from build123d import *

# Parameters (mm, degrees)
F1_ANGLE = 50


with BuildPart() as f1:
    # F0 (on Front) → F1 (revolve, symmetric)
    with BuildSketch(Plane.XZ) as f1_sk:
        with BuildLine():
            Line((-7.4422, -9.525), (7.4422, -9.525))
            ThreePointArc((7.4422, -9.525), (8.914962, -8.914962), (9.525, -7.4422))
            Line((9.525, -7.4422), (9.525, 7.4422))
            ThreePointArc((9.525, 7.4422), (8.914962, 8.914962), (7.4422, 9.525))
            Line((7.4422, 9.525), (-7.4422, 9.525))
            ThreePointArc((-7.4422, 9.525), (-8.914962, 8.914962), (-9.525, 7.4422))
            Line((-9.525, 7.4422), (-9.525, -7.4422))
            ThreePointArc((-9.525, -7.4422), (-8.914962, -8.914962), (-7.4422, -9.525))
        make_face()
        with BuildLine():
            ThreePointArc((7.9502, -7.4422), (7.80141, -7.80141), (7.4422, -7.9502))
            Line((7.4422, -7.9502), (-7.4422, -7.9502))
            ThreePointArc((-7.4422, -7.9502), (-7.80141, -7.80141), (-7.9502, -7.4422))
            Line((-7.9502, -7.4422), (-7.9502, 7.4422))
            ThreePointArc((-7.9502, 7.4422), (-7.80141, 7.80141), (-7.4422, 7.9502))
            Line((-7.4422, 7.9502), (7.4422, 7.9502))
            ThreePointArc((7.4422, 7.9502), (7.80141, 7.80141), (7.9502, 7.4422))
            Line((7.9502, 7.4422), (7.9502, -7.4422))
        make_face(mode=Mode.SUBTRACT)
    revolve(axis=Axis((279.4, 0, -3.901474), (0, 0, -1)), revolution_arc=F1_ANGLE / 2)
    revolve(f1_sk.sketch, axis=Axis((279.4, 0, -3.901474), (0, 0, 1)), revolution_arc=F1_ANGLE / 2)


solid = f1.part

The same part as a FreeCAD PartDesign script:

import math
import FreeCAD as App
import Part
import Sketcher
from FreeCAD import Vector
Q = App.Units.Quantity

doc = App.newDocument("Part")
body = doc.addObject("PartDesign::Body", "Body")

sketch1 = doc.addObject("Sketcher::SketchObject", "Sketch")
body.addObject(sketch1)
sketch1.AttachmentSupport = (doc.XZ_Plane, [""])
sketch1.MapMode = "FlatFace"
sketch1.addGeometry(Part.LineSegment(Vector(-7.4422, -9.525, 0), Vector(7.4422, -9.525, 0)), False)
sketch1.addGeometry(Part.ArcOfCircle(Part.Circle(Vector(7.4422, -7.4422, 0), Vector(0, 0, 1), 2.0828), math.radians(-90), math.radians(0)), False)
sketch1.addGeometry(Part.LineSegment(Vector(9.525, -7.4422, 0), Vector(9.525, 7.4422, 0)), False)
sketch1.addGeometry(Part.ArcOfCircle(Part.Circle(Vector(7.4422, 7.4422, 0), Vector(0, 0, 1), 2.0828), math.radians(0), math.radians(90)), False)
sketch1.addGeometry(Part.LineSegment(Vector(7.4422, 9.525, 0), Vector(-7.4422, 9.525, 0)), False)
sketch1.addGeometry(Part.ArcOfCircle(Part.Circle(Vector(-7.4422, 7.4422, 0), Vector(0, 0, 1), 2.0828), math.radians(90), math.radians(180)), False)
sketch1.addGeometry(Part.LineSegment(Vector(-9.525, 7.4422, 0), Vector(-9.525, -7.4422, 0)), False)
sketch1.addGeometry(Part.ArcOfCircle(Part.Circle(Vector(-7.4422, -7.4422, 0), Vector(0, 0, 1), 2.0828), math.radians(-180), math.radians(-90)), False)
sketch1.addGeometry(Part.LineSegment(Vector(7.9502, 7.4422, 0), Vector(7.9502, -7.4422, 0)), False)
sketch1.addGeometry(Part.ArcOfCircle(Part.Circle(Vector(7.442199, -7.442199, 0), Vector(0, 0, 1), 0.508001), math.radians(-89.999906), math.radians(-0.000094)), False)
sketch1.addGeometry(Part.LineSegment(Vector(7.4422, -7.9502, 0), Vector(-7.4422, -7.9502, 0)), False)
sketch1.addGeometry(Part.ArcOfCircle(Part.Circle(Vector(-7.442199, -7.442199, 0), Vector(0, 0, 1), 0.508001), math.radians(-179.999906), math.radians(-90.000094)), False)
sketch1.addGeometry(Part.LineSegment(Vector(-7.9502, -7.4422, 0), Vector(-7.9502, 7.4422, 0)), False)
sketch1.addGeometry(Part.ArcOfCircle(Part.Circle(Vector(-7.442199, 7.442199, 0), Vector(0, 0, 1), 0.508001), math.radians(90.000094), math.radians(179.999906)), False)
sketch1.addGeometry(Part.LineSegment(Vector(-7.4422, 7.9502, 0), Vector(7.4422, 7.9502, 0)), False)
sketch1.addGeometry(Part.ArcOfCircle(Part.Circle(Vector(7.442199, 7.442199, 0), Vector(0, 0, 1), 0.508001), math.radians(0.000094), math.radians(89.999906)), False)
sketch1.addGeometry(Part.LineSegment(Vector(279.4, 9.525, 0), Vector(279.4, -9.525, 0)), True)
sketch1.addConstraint(Sketcher.Constraint("Tangent", 0, 2, 1, 1))
sketch1.addConstraint(Sketcher.Constraint("Tangent", 1, 2, 2, 1))
sketch1.addConstraint(Sketcher.Constraint("Tangent", 2, 2, 3, 1))
sketch1.addConstraint(Sketcher.Constraint("Tangent", 3, 2, 4, 1))
sketch1.addConstraint(Sketcher.Constraint("Tangent", 4, 2, 5, 1))
sketch1.addConstraint(Sketcher.Constraint("Tangent", 5, 2, 6, 1))
sketch1.addConstraint(Sketcher.Constraint("Tangent", 6, 2, 7, 1))
sketch1.addConstraint(Sketcher.Constraint("Tangent", 7, 2, 0, 1))
sketch1.addConstraint(Sketcher.Constraint("Tangent", 8, 2, 9, 2))
sketch1.addConstraint(Sketcher.Constraint("Tangent", 9, 1, 10, 1))
sketch1.addConstraint(Sketcher.Constraint("Tangent", 10, 2, 11, 2))
sketch1.addConstraint(Sketcher.Constraint("Tangent", 11, 1, 12, 1))
sketch1.addConstraint(Sketcher.Constraint("Tangent", 12, 2, 13, 2))
sketch1.addConstraint(Sketcher.Constraint("Tangent", 13, 1, 14, 1))
sketch1.addConstraint(Sketcher.Constraint("Tangent", 14, 2, 15, 2))
sketch1.addConstraint(Sketcher.Constraint("Tangent", 15, 1, 8, 1))
sketch1.addConstraint(Sketcher.Constraint("Horizontal", 0))
sketch1.addConstraint(Sketcher.Constraint("Vertical", 2))
sketch1.addConstraint(Sketcher.Constraint("Horizontal", 4))
sketch1.addConstraint(Sketcher.Constraint("Vertical", 6))
sketch1.addConstraint(Sketcher.Constraint("Vertical", 8))
sketch1.addConstraint(Sketcher.Constraint("Horizontal", 10))
sketch1.addConstraint(Sketcher.Constraint("Vertical", 12))
sketch1.addConstraint(Sketcher.Constraint("Horizontal", 14))
sketch1.addConstraint(Sketcher.Constraint("Vertical", 16))
sketch1.addConstraint(Sketcher.Constraint("Coincident", 9, 3, 1, 3))
sketch1.addConstraint(Sketcher.Constraint("Coincident", 11, 3, 7, 3))
sketch1.addConstraint(Sketcher.Constraint("Coincident", 13, 3, 5, 3))
sketch1.addConstraint(Sketcher.Constraint("Equal", 1, 3))
sketch1.addConstraint(Sketcher.Constraint("Equal", 3, 5))
sketch1.addConstraint(Sketcher.Constraint("Equal", 5, 7))
sketch1.addConstraint(Sketcher.Constraint("Equal", 13, 15))
sketch1.addConstraint(Sketcher.Constraint("Symmetric", 1, 3, 5, 3, -1, 1))
sketch1.addConstraint(Sketcher.Constraint("Horizontal", 4, 2, 16, 1))
sketch1.addConstraint(Sketcher.Constraint("Horizontal", 7, 2, 16, 2))
sketch1.addConstraint(Sketcher.Constraint("Equal", 14, 2))
sketch1.addConstraint(Sketcher.Constraint("Radius", 9, Q("0.02 in")))
sketch1.addConstraint(Sketcher.Constraint("DistanceX", -1, 1, 16, 1, Q("11 in")))
sketch1.addConstraint(Sketcher.Constraint("Radius", 1, Q("0.082 in")))
sketch1.addConstraint(Sketcher.Constraint("DistanceY", 16, 2, 16, 1, Q("0.75 in")))
revolution = doc.addObject("PartDesign::Revolution", "Revolution")
body.addObject(revolution)
revolution.Profile = sketch1
revolution.ReferenceAxis = (sketch1, ["Axis0"])
revolution.Angle = 25

sketch2 = doc.addObject("Sketcher::SketchObject", "Sketch001")
body.addObject(sketch2)
sketch2.AttachmentSupport = (doc.XZ_Plane, [""])
sketch2.MapMode = "FlatFace"
sketch2.addGeometry(Part.LineSegment(Vector(-7.4422, -9.525, 0), Vector(7.4422, -9.525, 0)), False)
sketch2.addGeometry(Part.ArcOfCircle(Part.Circle(Vector(7.4422, -7.4422, 0), Vector(0, 0, 1), 2.0828), math.radians(-90), math.radians(0)), False)
sketch2.addGeometry(Part.LineSegment(Vector(9.525, -7.4422, 0), Vector(9.525, 7.4422, 0)), False)
sketch2.addGeometry(Part.ArcOfCircle(Part.Circle(Vector(7.4422, 7.4422, 0), Vector(0, 0, 1), 2.0828), math.radians(0), math.radians(90)), False)
sketch2.addGeometry(Part.LineSegment(Vector(7.4422, 9.525, 0), Vector(-7.4422, 9.525, 0)), False)
sketch2.addGeometry(Part.ArcOfCircle(Part.Circle(Vector(-7.4422, 7.4422, 0), Vector(0, 0, 1), 2.0828), math.radians(90), math.radians(180)), False)
sketch2.addGeometry(Part.LineSegment(Vector(-9.525, 7.4422, 0), Vector(-9.525, -7.4422, 0)), False)
sketch2.addGeometry(Part.ArcOfCircle(Part.Circle(Vector(-7.4422, -7.4422, 0), Vector(0, 0, 1), 2.0828), math.radians(-180), math.radians(-90)), False)
sketch2.addGeometry(Part.LineSegment(Vector(7.9502, 7.4422, 0), Vector(7.9502, -7.4422, 0)), False)
sketch2.addGeometry(Part.ArcOfCircle(Part.Circle(Vector(7.442199, -7.442199, 0), Vector(0, 0, 1), 0.508001), math.radians(-89.999906), math.radians(-0.000094)), False)
sketch2.addGeometry(Part.LineSegment(Vector(7.4422, -7.9502, 0), Vector(-7.4422, -7.9502, 0)), False)
sketch2.addGeometry(Part.ArcOfCircle(Part.Circle(Vector(-7.442199, -7.442199, 0), Vector(0, 0, 1), 0.508001), math.radians(-179.999906), math.radians(-90.000094)), False)
sketch2.addGeometry(Part.LineSegment(Vector(-7.9502, -7.4422, 0), Vector(-7.9502, 7.4422, 0)), False)
sketch2.addGeometry(Part.ArcOfCircle(Part.Circle(Vector(-7.442199, 7.442199, 0), Vector(0, 0, 1), 0.508001), math.radians(90.000094), math.radians(179.999906)), False)
sketch2.addGeometry(Part.LineSegment(Vector(-7.4422, 7.9502, 0), Vector(7.4422, 7.9502, 0)), False)
sketch2.addGeometry(Part.ArcOfCircle(Part.Circle(Vector(7.442199, 7.442199, 0), Vector(0, 0, 1), 0.508001), math.radians(0.000094), math.radians(89.999906)), False)
sketch2.addGeometry(Part.LineSegment(Vector(279.4, -9.525, 0), Vector(279.4, 9.525, 0)), True)
sketch2.addConstraint(Sketcher.Constraint("Tangent", 0, 2, 1, 1))
sketch2.addConstraint(Sketcher.Constraint("Tangent", 1, 2, 2, 1))
sketch2.addConstraint(Sketcher.Constraint("Tangent", 2, 2, 3, 1))
sketch2.addConstraint(Sketcher.Constraint("Tangent", 3, 2, 4, 1))
sketch2.addConstraint(Sketcher.Constraint("Tangent", 4, 2, 5, 1))
sketch2.addConstraint(Sketcher.Constraint("Tangent", 5, 2, 6, 1))
sketch2.addConstraint(Sketcher.Constraint("Tangent", 6, 2, 7, 1))
sketch2.addConstraint(Sketcher.Constraint("Tangent", 7, 2, 0, 1))
sketch2.addConstraint(Sketcher.Constraint("Tangent", 8, 2, 9, 2))
sketch2.addConstraint(Sketcher.Constraint("Tangent", 9, 1, 10, 1))
sketch2.addConstraint(Sketcher.Constraint("Tangent", 10, 2, 11, 2))
sketch2.addConstraint(Sketcher.Constraint("Tangent", 11, 1, 12, 1))
sketch2.addConstraint(Sketcher.Constraint("Tangent", 12, 2, 13, 2))
sketch2.addConstraint(Sketcher.Constraint("Tangent", 13, 1, 14, 1))
sketch2.addConstraint(Sketcher.Constraint("Tangent", 14, 2, 15, 2))
sketch2.addConstraint(Sketcher.Constraint("Tangent", 15, 1, 8, 1))
sketch2.addConstraint(Sketcher.Constraint("Horizontal", 0))
sketch2.addConstraint(Sketcher.Constraint("Vertical", 2))
sketch2.addConstraint(Sketcher.Constraint("Horizontal", 4))
sketch2.addConstraint(Sketcher.Constraint("Vertical", 6))
sketch2.addConstraint(Sketcher.Constraint("Vertical", 8))
sketch2.addConstraint(Sketcher.Constraint("Horizontal", 10))
sketch2.addConstraint(Sketcher.Constraint("Vertical", 12))
sketch2.addConstraint(Sketcher.Constraint("Horizontal", 14))
sketch2.addConstraint(Sketcher.Constraint("Vertical", 16))
sketch2.addConstraint(Sketcher.Constraint("Coincident", 9, 3, 1, 3))
sketch2.addConstraint(Sketcher.Constraint("Coincident", 11, 3, 7, 3))
sketch2.addConstraint(Sketcher.Constraint("Coincident", 13, 3, 5, 3))
sketch2.addConstraint(Sketcher.Constraint("Equal", 1, 3))
sketch2.addConstraint(Sketcher.Constraint("Equal", 3, 5))
sketch2.addConstraint(Sketcher.Constraint("Equal", 5, 7))
sketch2.addConstraint(Sketcher.Constraint("Equal", 13, 15))
sketch2.addConstraint(Sketcher.Constraint("Symmetric", 1, 3, 5, 3, -1, 1))
sketch2.addConstraint(Sketcher.Constraint("Horizontal", 7, 2, 16, 1))
sketch2.addConstraint(Sketcher.Constraint("Horizontal", 4, 2, 16, 2))
sketch2.addConstraint(Sketcher.Constraint("Equal", 14, 2))
sketch2.addConstraint(Sketcher.Constraint("Radius", 9, Q("0.02 in")))
sketch2.addConstraint(Sketcher.Constraint("DistanceX", -1, 1, 16, 1, Q("11 in")))
sketch2.addConstraint(Sketcher.Constraint("Radius", 1, Q("0.082 in")))
sketch2.addConstraint(Sketcher.Constraint("DistanceY", 16, 1, 16, 2, Q("0.75 in")))
revolution2 = doc.addObject("PartDesign::Revolution", "Revolution001")
body.addObject(revolution2)
revolution2.Profile = sketch2
revolution2.ReferenceAxis = (sketch2, ["Axis0"])
revolution2.Angle = 25

doc.recompute()
